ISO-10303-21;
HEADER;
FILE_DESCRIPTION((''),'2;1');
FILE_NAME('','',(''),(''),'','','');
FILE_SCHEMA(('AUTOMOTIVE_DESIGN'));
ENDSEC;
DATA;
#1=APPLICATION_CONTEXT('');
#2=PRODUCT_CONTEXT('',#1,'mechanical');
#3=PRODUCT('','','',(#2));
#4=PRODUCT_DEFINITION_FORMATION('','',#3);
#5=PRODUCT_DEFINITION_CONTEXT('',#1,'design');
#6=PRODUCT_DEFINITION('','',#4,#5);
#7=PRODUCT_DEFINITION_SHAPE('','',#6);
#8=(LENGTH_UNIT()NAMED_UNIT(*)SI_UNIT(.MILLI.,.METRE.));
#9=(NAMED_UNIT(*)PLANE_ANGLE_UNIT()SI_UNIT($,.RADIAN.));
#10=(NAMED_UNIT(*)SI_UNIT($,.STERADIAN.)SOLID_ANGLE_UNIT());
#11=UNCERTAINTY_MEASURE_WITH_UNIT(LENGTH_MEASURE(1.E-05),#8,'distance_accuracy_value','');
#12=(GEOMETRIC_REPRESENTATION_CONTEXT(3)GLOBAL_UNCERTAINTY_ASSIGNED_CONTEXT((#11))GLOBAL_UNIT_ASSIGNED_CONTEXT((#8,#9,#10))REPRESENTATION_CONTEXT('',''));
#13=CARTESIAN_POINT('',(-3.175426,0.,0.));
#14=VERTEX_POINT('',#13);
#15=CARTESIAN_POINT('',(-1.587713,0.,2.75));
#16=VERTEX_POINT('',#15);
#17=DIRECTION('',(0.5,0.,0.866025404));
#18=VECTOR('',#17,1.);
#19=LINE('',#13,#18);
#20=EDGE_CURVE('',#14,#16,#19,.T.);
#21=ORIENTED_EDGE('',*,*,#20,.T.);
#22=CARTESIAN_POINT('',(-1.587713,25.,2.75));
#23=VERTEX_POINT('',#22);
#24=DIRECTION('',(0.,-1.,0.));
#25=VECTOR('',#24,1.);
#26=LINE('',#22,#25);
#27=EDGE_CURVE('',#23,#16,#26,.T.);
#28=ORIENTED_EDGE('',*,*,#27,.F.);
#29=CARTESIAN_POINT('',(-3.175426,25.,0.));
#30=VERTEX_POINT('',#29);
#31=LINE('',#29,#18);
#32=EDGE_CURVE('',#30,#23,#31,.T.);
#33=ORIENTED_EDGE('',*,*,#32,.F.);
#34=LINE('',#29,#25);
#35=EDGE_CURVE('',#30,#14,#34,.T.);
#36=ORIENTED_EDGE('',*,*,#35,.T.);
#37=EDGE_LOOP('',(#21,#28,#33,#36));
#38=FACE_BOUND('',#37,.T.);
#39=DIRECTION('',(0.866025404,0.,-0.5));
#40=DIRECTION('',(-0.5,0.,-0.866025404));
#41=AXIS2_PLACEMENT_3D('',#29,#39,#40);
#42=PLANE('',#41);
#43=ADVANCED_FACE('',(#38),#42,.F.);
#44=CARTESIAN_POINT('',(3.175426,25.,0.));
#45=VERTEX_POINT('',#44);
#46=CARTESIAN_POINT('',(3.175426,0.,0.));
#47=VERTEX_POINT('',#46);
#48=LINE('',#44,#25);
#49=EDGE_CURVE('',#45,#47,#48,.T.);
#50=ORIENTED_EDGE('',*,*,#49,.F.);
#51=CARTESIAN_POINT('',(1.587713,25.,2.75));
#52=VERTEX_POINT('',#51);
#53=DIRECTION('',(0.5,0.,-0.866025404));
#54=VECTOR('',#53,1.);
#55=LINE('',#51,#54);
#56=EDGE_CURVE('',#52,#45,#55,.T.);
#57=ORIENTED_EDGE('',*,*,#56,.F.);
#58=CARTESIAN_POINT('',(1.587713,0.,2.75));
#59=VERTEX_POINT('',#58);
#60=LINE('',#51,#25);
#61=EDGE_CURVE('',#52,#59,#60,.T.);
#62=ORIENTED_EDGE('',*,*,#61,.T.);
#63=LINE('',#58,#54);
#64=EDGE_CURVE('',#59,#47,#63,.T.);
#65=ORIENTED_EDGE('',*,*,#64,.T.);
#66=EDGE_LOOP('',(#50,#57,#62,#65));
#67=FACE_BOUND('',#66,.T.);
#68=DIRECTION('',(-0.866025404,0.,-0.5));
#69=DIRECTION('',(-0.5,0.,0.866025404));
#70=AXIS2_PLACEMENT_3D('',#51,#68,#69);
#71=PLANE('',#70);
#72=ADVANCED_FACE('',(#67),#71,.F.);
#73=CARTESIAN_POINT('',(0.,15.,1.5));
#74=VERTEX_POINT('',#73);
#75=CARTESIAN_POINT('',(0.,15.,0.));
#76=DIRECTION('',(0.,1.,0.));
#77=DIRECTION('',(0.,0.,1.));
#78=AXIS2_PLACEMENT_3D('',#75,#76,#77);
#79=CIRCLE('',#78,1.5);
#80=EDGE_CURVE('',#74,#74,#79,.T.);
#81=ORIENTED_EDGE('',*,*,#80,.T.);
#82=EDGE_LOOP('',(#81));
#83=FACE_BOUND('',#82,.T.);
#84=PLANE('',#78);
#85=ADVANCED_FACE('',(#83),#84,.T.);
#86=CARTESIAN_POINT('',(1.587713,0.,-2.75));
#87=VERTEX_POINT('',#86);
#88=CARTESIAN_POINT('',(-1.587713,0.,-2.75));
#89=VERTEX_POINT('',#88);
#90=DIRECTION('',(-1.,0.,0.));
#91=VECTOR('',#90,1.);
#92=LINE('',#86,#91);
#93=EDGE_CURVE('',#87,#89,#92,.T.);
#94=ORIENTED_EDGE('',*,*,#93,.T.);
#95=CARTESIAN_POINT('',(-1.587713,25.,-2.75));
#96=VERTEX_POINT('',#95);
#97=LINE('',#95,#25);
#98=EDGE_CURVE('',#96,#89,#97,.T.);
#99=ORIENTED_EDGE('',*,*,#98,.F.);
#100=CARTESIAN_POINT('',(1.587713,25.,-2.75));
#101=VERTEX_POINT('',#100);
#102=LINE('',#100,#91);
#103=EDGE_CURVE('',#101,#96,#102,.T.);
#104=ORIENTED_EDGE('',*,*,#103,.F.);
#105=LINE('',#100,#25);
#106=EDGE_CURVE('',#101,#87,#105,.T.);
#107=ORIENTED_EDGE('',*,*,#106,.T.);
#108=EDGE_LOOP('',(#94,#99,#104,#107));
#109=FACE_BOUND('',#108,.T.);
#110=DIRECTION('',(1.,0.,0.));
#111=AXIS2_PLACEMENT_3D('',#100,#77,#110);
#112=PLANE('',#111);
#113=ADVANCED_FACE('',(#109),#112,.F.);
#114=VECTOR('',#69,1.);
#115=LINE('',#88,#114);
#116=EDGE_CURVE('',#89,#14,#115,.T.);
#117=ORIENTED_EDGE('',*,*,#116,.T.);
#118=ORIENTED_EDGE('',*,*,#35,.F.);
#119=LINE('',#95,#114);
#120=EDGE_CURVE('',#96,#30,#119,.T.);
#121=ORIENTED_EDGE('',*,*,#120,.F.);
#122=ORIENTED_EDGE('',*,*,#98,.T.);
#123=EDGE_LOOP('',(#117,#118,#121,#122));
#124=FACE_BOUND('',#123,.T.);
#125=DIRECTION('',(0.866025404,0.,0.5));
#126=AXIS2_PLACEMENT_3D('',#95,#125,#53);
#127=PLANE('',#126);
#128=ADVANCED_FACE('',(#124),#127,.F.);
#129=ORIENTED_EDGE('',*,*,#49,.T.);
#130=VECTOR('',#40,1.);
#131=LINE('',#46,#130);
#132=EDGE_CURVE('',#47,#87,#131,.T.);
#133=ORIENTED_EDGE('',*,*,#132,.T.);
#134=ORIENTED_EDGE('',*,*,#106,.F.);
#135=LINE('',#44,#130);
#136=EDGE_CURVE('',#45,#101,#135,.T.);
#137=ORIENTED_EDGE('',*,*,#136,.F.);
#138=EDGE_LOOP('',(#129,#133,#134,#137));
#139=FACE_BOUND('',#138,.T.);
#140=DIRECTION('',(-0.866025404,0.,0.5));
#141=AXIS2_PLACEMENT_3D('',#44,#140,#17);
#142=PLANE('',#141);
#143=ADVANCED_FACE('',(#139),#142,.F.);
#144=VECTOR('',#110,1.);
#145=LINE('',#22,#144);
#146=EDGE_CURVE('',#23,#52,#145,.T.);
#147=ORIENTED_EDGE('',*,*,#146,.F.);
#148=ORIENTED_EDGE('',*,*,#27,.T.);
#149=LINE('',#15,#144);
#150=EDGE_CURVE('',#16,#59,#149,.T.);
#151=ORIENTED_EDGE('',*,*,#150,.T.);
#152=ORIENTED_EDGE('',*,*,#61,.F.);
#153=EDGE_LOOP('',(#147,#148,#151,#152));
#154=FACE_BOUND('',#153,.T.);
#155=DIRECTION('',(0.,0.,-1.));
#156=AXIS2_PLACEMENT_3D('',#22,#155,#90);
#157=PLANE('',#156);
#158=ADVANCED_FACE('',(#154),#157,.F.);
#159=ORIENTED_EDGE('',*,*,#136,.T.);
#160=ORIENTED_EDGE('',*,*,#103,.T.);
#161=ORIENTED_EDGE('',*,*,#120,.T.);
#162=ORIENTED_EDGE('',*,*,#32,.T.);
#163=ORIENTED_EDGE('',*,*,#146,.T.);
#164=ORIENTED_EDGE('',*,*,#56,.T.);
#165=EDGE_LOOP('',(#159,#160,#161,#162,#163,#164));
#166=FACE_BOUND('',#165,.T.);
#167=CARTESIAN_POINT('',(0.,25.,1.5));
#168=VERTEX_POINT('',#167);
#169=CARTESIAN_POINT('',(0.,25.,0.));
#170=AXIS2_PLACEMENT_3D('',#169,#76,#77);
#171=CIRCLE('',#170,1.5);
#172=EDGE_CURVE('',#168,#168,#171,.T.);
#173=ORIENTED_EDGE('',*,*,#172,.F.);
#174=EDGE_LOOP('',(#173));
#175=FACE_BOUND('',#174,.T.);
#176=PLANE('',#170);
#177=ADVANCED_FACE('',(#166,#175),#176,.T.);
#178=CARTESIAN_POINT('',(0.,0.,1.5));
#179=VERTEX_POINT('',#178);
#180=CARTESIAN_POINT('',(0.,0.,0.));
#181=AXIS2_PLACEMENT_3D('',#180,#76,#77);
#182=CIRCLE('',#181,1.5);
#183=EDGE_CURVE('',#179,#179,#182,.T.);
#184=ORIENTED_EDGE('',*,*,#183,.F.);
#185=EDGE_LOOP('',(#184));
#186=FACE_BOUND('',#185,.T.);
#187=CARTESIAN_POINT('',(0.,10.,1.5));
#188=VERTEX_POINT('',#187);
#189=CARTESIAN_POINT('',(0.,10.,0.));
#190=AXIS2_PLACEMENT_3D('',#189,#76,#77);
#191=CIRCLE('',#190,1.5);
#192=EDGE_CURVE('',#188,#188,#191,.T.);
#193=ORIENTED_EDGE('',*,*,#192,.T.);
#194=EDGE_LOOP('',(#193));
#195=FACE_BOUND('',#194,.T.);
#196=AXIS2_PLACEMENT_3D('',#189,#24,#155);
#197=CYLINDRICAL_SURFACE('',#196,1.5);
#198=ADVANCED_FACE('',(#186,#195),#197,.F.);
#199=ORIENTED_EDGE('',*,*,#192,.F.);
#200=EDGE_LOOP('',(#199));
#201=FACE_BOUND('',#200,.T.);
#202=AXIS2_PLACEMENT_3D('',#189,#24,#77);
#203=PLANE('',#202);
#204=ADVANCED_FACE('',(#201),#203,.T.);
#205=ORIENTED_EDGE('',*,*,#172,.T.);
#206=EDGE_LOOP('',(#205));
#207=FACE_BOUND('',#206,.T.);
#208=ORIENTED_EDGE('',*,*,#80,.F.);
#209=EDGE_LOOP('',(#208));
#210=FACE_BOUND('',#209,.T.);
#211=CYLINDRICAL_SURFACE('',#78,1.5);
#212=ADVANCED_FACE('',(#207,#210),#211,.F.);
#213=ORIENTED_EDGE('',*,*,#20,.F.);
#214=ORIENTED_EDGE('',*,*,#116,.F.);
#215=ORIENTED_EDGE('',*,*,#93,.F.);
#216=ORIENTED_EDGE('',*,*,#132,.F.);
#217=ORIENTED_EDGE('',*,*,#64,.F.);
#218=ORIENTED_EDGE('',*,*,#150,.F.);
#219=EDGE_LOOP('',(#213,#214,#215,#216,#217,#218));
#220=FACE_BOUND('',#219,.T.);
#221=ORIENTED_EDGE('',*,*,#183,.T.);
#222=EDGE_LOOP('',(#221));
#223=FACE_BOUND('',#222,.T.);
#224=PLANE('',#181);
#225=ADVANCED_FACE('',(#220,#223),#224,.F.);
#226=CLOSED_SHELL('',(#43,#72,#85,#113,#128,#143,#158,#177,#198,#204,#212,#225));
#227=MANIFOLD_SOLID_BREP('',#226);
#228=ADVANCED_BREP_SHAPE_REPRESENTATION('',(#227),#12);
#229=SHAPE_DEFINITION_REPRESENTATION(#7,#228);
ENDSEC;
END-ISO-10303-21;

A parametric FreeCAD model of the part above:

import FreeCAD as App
import Part
import Sketcher
Q = App.Units.Quantity


def add_polygon(sketch, points):
    """Adds a closed chain of lines whose ends are joined by coincident constraints."""
    first, n = sketch.GeometryCount, len(points)
    for a, b in zip(points, points[1:] + points[:1]):
        sketch.addGeometry(Part.LineSegment(App.Vector(*a, 0), App.Vector(*b, 0)), False)
    for i in range(n):
        sketch.addConstraint(Sketcher.Constraint("Coincident", first + i, 2, first + (i + 1) % n, 1))

doc = App.newDocument("Part")
body = doc.addObject("PartDesign::Body", "Body")

# Sketch on XZ plane
sketch1 = body.newObject("Sketcher::SketchObject", "Sketch")
sketch1.AttachmentSupport = (doc.getObject("XZ_Plane"), [""])
sketch1.MapMode = "FlatFace"
add_polygon(sketch1, [(3.2, 0), (1.6, -2.8), (-1.6, -2.8), (-3.2, 0), (-1.6, 2.8), (1.6, 2.8)])  # lines 0-5
sketch1.addConstraint(Sketcher.Constraint("Horizontal", 1))
sketch1.addConstraint(Sketcher.Constraint("Horizontal", 4))
sketch1.addConstraint(Sketcher.Constraint("Symmetric", 0, 2, 3, 2, -1, 1))
sketch1.addConstraint(Sketcher.Constraint("Symmetric", 2, 2, 5, 2, -1, 1))
sketch1.addConstraint(Sketcher.Constraint("PointOnObject", 2, 2, -1))
sketch1.addConstraint(Sketcher.Constraint("Parallel", 2, 5))
sketch1.addConstraint(Sketcher.Constraint("Vertical", 1, 2, 3, 2))
sketch1.addConstraint(Sketcher.Constraint("Angle", 0, Q("-120 deg")))
sketch1.addConstraint(Sketcher.Constraint("DistanceY", 1, 2, 3, 2, Q("5.5 mm")))
sketch1.addConstraint(Sketcher.Constraint("DistanceX", 1, 2, 1, 1, Q("3.175426 mm")))
pad1 = body.newObject("PartDesign::Pad", "Pad")
pad1.Profile = sketch1
pad1.Length = 25
pad1.Reversed = True

# Sketch on XZ plane
sketch2 = body.newObject("Sketcher::SketchObject", "Sketch001")
sketch2.AttachmentSupport = (doc.getObject("XZ_Plane"), [""])
sketch2.MapMode = "FlatFace"
sketch2.AttachmentOffset = App.Placement(App.Vector(0, 0, -25), App.Rotation())
sketch2.addGeometry(Part.Circle(App.Vector(0, 0, 0), App.Vector(0, 0, 1), 1.5), False)
sketch2.addConstraint(Sketcher.Constraint("Coincident", 0, 3, -1, 1))
sketch2.addConstraint(Sketcher.Constraint("Diameter", 0, Q("3 mm")))
pocket1 = body.newObject("PartDesign::Pocket", "Pocket")
pocket1.Profile = sketch2
pocket1.Length = 10
pocket1.Reversed = True
doc.recompute()

datumplane = body.newObject("PartDesign::Plane", "DatumPlane")
datumplane.AttachmentSupport = (doc.getObject("XZ_Plane"), [""])
datumplane.MapMode = "FlatFace"
datumplane.AttachmentOffset = App.Placement(App.Vector(0, 0, -12.5), App.Rotation())
mirrored = body.newObject("PartDesign::Mirrored", "Mirrored")
mirrored.Originals = [pocket1]
mirrored.MirrorPlane = (datumplane, [""])
body.Tip = mirrored

doc.recompute()
